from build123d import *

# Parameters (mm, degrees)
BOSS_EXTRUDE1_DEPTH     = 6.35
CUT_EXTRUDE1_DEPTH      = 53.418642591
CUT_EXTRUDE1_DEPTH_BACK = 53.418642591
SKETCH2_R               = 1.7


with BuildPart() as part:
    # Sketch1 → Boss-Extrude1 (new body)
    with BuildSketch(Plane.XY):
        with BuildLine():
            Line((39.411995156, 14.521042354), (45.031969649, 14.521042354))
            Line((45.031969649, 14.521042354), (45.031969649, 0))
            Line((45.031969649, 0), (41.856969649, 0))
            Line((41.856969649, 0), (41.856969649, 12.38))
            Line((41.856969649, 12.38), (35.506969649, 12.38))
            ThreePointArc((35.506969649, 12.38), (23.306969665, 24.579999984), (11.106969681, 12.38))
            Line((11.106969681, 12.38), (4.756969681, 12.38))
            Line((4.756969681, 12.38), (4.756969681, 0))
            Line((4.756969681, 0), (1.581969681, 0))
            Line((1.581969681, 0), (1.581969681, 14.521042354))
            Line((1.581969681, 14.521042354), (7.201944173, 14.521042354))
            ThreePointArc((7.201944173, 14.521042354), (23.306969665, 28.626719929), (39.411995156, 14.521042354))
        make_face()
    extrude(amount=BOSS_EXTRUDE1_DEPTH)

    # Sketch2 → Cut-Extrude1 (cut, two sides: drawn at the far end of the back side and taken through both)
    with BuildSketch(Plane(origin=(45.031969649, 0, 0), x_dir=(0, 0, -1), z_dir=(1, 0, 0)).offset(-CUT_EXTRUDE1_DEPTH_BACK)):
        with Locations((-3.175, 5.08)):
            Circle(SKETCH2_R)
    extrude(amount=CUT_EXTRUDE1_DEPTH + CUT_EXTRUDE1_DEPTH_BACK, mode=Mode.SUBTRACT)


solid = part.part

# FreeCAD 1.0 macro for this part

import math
import FreeCAD as App
import Part
import Sketcher
from FreeCAD import Vector

doc = App.newDocument("Part")
body = doc.addObject("PartDesign::Body", "Body")

# Sketch on XY plane
sketch1 = body.newObject("Sketcher::SketchObject", "Sketch")
sketch1.AttachmentSupport = (doc.getObject("XY_Plane"), [""])
sketch1.MapMode = "FlatFace"
sketch1.addGeometry(Part.LineSegment(Vector(45, 14.5, 0), Vector(39.4, 14.5, 0)), False)
sketch1.addGeometry(Part.ArcOfCircle(Part.Circle(Vector(23.3, 12.4, 0), Vector(0, 0, 1), 16.2), math.radians(8), math.radians(172)), False)
sketch1.addGeometry(Part.LineSegment(Vector(7.2, 14.5, 0), Vector(1.6, 14.5, 0)), False)
sketch1.addGeometry(Part.LineSegment(Vector(1.6, 14.5, 0), Vector(1.6, 0, 0)), False)
sketch1.addGeometry(Part.LineSegment(Vector(1.6, 0, 0), Vector(4.8, 0, 0)), False)
sketch1.addGeometry(Part.LineSegment(Vector(4.8, 0, 0), Vector(4.8, 12.4, 0)), False)
sketch1.addGeometry(Part.LineSegment(Vector(4.8, 12.4, 0), Vector(11.1, 12.4, 0)), False)
sketch1.addGeometry(Part.ArcOfCircle(Part.Circle(Vector(23.3, 12.4, 0), Vector(0, 0, 1), 12.2), math.radians(0), math.radians(180)), False)
sketch1.addGeometry(Part.LineSegment(Vector(35.5, 12.4, 0), Vector(41.9, 12.4, 0)), False)
sketch1.addGeometry(Part.LineSegment(Vector(41.9, 12.4, 0), Vector(41.9, 0, 0)), False)
sketch1.addGeometry(Part.LineSegment(Vector(41.9, 0, 0), Vector(45, 0, 0)), False)
sketch1.addGeometry(Part.LineSegment(Vector(45, 0, 0), Vector(45, 14.5, 0)), False)
sketch1.addConstraint(Sketcher.Constraint("Coincident", 0, 2, 1, 1))
sketch1.addConstraint(Sketcher.Constraint("Coincident", 1, 2, 2, 1))
sketch1.addConstraint(Sketcher.Constraint("Coincident", 2, 2, 3, 1))
sketch1.addConstraint(Sketcher.Constraint("Coincident", 3, 2, 4, 1))
sketch1.addConstraint(Sketcher.Constraint("Coincident", 4, 2, 5, 1))
sketch1.addConstraint(Sketcher.Constraint("Coincident", 5, 2, 6, 1))
sketch1.addConstraint(Sketcher.Constraint("Coincident", 6, 2, 7, 2))
sketch1.addConstraint(Sketcher.Constraint("Coincident", 7, 1, 8, 1))
sketch1.addConstraint(Sketcher.Constraint("Coincident", 8, 2, 9, 1))
sketch1.addConstraint(Sketcher.Constraint("Coincident", 9, 2, 10, 1))
sketch1.addConstraint(Sketcher.Constraint("Coincident", 10, 2, 11, 1))
sketch1.addConstraint(Sketcher.Constraint("Coincident", 11, 2, 0, 1))
sketch1.addConstraint(Sketcher.Constraint("Horizontal", 0))
sketch1.addConstraint(Sketcher.Constraint("Horizontal", 2))
sketch1.addConstraint(Sketcher.Constraint("Vertical", 3))
sketch1.addConstraint(Sketcher.Constraint("Horizontal", 4))
sketch1.addConstraint(Sketcher.Constraint("Vertical", 5))
sketch1.addConstraint(Sketcher.Constraint("Horizontal", 6))
sketch1.addConstraint(Sketcher.Constraint("Horizontal", 8))
sketch1.addConstraint(Sketcher.Constraint("Vertical", 9))
sketch1.addConstraint(Sketcher.Constraint("Horizontal", 10))
sketch1.addConstraint(Sketcher.Constraint("Vertical", 11))
sketch1.addConstraint(Sketcher.Constraint("Coincident", 7, 3, 1, 3))
sketch1.addConstraint(Sketcher.Constraint("PointOnObject", 3, 2, -1))
sketch1.addConstraint(Sketcher.Constraint("PointOnObject", 9, 2, -1))
sketch1.addConstraint(Sketcher.Constraint("Horizontal", 0, 2, 1, 2))
sketch1.addConstraint(Sketcher.Constraint("Horizontal", 7, 3, 5, 2))
sketch1.addConstraint(Sketcher.Constraint("Horizontal", 6, 2, 7, 1))
sketch1.addConstraint(Sketcher.Constraint("Equal", 0, 2))
sketch1.addConstraint(Sketcher.Constraint("Equal", 6, 8))
sketch1.addConstraint(Sketcher.Constraint("Radius", 7, 12.2))
sketch1.addConstraint(Sketcher.Constraint("DistanceX", 6, 1, 6, 2, 6.35))
sketch1.addConstraint(Sketcher.Constraint("DistanceY", 5, 1, 5, 2, 12.38))
sketch1.addConstraint(Sketcher.Constraint("DistanceX", 4, 1, 4, 2, 3.175))
sketch1.addConstraint(Sketcher.Constraint("Radius", 1, 16.24672))
sketch1.addConstraint(Sketcher.Constraint("DistanceX", 0, 2, 0, 1, 5.619974))
sketch1.addConstraint(Sketcher.Constraint("DistanceX", -1, 1, 1, 3, 23.30697))
pad1 = body.newObject("PartDesign::Pad", "Pad")
pad1.Profile = sketch1
pad1.Length = 6.35

# Sketch on YZ plane
sketch2 = body.newObject("Sketcher::SketchObject", "Sketch001")
sketch2.AttachmentSupport = (doc.getObject("YZ_Plane"), [""])
sketch2.MapMode = "FlatFace"
sketch2.AttachmentOffset = App.Placement(Vector(0, 0, 45.03197), App.Rotation())
sketch2.addGeometry(Part.Circle(Vector(5.1, 3.2, 0), Vector(0, 0, 1), 1.7), False)
sketch2.addConstraint(Sketcher.Constraint("Diameter", 0, 3.4))
sketch2.addConstraint(Sketcher.Constraint("DistanceX", -1, 1, 0, 3, 5.08))
sketch2.addConstraint(Sketcher.Constraint("DistanceY", -1, 1, 0, 3, 3.175))
pocket1 = body.newObject("PartDesign::Pocket", "Pocket")
pocket1.Profile = sketch2
pocket1.Type = "ThroughAll"
pocket1.Midplane = True

doc.recompute()
